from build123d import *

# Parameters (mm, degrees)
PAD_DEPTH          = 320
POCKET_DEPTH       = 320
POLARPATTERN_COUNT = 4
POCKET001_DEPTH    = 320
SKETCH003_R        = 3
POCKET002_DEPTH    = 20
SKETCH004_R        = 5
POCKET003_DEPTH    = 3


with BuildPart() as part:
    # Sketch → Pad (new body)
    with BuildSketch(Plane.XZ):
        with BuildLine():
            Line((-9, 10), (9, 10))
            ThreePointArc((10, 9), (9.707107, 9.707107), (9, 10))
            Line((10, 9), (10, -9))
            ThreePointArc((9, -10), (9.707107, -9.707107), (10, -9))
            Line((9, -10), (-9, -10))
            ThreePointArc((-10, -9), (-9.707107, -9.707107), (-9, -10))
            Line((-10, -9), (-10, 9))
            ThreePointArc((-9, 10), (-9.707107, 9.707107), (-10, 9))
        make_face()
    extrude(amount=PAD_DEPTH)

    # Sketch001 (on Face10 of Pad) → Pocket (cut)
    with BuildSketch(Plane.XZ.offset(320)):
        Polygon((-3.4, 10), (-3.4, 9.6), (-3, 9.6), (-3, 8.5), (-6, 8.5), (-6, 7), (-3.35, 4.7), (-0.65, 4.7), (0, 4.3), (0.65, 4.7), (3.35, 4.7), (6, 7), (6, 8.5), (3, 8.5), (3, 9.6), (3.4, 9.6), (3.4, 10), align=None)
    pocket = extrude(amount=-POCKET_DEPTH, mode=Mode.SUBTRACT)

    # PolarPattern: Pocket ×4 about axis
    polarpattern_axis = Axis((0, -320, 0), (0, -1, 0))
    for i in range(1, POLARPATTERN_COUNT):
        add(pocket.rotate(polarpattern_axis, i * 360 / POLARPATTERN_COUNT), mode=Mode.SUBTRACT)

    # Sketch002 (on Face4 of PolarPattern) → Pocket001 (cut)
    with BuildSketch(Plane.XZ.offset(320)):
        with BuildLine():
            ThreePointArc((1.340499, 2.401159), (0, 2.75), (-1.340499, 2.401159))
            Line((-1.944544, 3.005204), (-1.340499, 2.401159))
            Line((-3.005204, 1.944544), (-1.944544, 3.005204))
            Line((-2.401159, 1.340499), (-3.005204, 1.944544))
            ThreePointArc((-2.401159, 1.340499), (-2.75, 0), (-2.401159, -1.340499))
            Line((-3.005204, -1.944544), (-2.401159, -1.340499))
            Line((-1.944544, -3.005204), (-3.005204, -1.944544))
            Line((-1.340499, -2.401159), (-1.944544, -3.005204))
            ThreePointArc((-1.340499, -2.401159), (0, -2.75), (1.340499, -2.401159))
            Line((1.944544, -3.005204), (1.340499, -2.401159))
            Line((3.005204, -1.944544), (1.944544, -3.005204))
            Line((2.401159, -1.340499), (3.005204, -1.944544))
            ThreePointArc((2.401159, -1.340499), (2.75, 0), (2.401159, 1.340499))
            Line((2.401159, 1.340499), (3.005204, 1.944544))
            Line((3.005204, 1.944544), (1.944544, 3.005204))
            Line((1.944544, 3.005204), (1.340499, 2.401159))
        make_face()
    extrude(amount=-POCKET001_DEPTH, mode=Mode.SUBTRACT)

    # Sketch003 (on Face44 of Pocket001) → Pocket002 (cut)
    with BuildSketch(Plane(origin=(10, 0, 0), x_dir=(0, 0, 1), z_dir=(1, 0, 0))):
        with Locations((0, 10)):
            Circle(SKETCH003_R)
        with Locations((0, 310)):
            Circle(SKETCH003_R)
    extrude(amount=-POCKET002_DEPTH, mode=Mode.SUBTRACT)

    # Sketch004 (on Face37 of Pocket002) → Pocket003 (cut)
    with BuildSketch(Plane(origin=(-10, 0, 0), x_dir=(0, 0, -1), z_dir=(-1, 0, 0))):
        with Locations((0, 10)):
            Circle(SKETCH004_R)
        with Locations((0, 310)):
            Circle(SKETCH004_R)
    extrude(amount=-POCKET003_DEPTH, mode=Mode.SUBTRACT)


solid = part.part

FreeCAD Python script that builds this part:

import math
import FreeCAD as App
import Part
import Sketcher
Q = App.Units.Quantity


def add_polygon(sketch, points):
    """Adds a closed chain of lines whose ends are joined by coincident constraints."""
    first, n = sketch.GeometryCount, len(points)
    for a, b in zip(points, points[1:] + points[:1]):
        sketch.addGeometry(Part.LineSegment(App.Vector(*a, 0), App.Vector(*b, 0)), False)
    for i in range(n):
        sketch.addConstraint(Sketcher.Constraint("Coincident", first + i, 2, first + (i + 1) % n, 1))

doc = App.newDocument("Part")
body = doc.addObject("PartDesign::Body", "Body")

# Sketch on XZ plane
sketch1 = body.newObject("Sketcher::SketchObject", "Sketch")
sketch1.AttachmentSupport = (doc.getObject("XZ_Plane"), [""])
sketch1.MapMode = "FlatFace"
sketch1.addGeometry(Part.LineSegment(App.Vector(9, 10, 0), App.Vector(-9, 10, 0)), False)
sketch1.addGeometry(Part.ArcOfCircle(Part.Circle(App.Vector(-9, 9, 0), App.Vector(0, 0, 1), 1), math.radians(90), math.radians(180)), False)
sketch1.addGeometry(Part.LineSegment(App.Vector(-10, 9, 0), App.Vector(-10, -9, 0)), False)
sketch1.addGeometry(Part.ArcOfCircle(Part.Circle(App.Vector(-9, -9, 0), App.Vector(0, 0, 1), 1), math.radians(180), math.radians(270)), False)
sketch1.addGeometry(Part.LineSegment(App.Vector(-9, -10, 0), App.Vector(9, -10, 0)), False)
sketch1.addGeometry(Part.ArcOfCircle(Part.Circle(App.Vector(9, -9, 0), App.Vector(0, 0, 1), 1), math.radians(-90), math.radians(0)), False)
sketch1.addGeometry(Part.LineSegment(App.Vector(10, -9, 0), App.Vector(10, 9, 0)), False)
sketch1.addGeometry(Part.ArcOfCircle(Part.Circle(App.Vector(9, 9, 0), App.Vector(0, 0, 1), 1), math.radians(0), math.radians(90)), False)
sketch1.addConstraint(Sketcher.Constraint("Tangent", 0, 2, 1, 1))
sketch1.addConstraint(Sketcher.Constraint("Tangent", 1, 2, 2, 1))
sketch1.addConstraint(Sketcher.Constraint("Tangent", 2, 2, 3, 1))
sketch1.addConstraint(Sketcher.Constraint("Tangent", 3, 2, 4, 1))
sketch1.addConstraint(Sketcher.Constraint("Tangent", 4, 2, 5, 1))
sketch1.addConstraint(Sketcher.Constraint("Tangent", 5, 2, 6, 1))
sketch1.addConstraint(Sketcher.Constraint("Tangent", 6, 2, 7, 1))
sketch1.addConstraint(Sketcher.Constraint("Tangent", 7, 2, 0, 1))
sketch1.addConstraint(Sketcher.Constraint("Horizontal", 0))
sketch1.addConstraint(Sketcher.Constraint("Vertical", 2))
sketch1.addConstraint(Sketcher.Constraint("Horizontal", 4))
sketch1.addConstraint(Sketcher.Constraint("Vertical", 6))
sketch1.addConstraint(Sketcher.Constraint("Equal", 1, 3))
sketch1.addConstraint(Sketcher.Constraint("Equal", 3, 5))
sketch1.addConstraint(Sketcher.Constraint("Equal", 5, 7))
sketch1.addConstraint(Sketcher.Constraint("Symmetric", 1, 3, 5, 3, -1, 1))
sketch1.addConstraint(Sketcher.Constraint("Equal", 4, 2))
sketch1.addConstraint(Sketcher.Constraint("Radius", 1, Q("0.999999 mm")))
sketch1.addConstraint(Sketcher.Constraint("DistanceX", 0, 2, 0, 1, Q("18 mm")))
pad1 = body.newObject("PartDesign::Pad", "Pad")
pad1.Profile = sketch1
pad1.Length = 320

# Sketch on XZ plane
sketch2 = body.newObject("Sketcher::SketchObject", "Sketch001")
sketch2.AttachmentSupport = (doc.getObject("XZ_Plane"), [""])
sketch2.MapMode = "FlatFace"
sketch2.AttachmentOffset = App.Placement(App.Vector(0, 0, 320), App.Rotation())
add_polygon(sketch2, [(-3.4, 10), (-3.4, 9.6), (-3, 9.6), (-3, 8.5), (-6, 8.5), (-6, 7), (-3.35, 4.7), (-0.65, 4.7), (0, 4.3), (0.65, 4.7), (3.35, 4.7), (6, 7), (6, 8.5), (3, 8.5), (3, 9.6), (3.4, 9.6), (3.4, 10)])  # lines 0-16
sketch2.addConstraint(Sketcher.Constraint("Vertical", 0))
sketch2.addConstraint(Sketcher.Constraint("Horizontal", 1))
sketch2.addConstraint(Sketcher.Constraint("Vertical", 2))
sketch2.addConstraint(Sketcher.Constraint("Horizontal", 3))
sketch2.addConstraint(Sketcher.Constraint("Vertical", 4))
sketch2.addConstraint(Sketcher.Constraint("Horizontal", 6))
sketch2.addConstraint(Sketcher.Constraint("Horizontal", 9))
sketch2.addConstraint(Sketcher.Constraint("Vertical", 11))
sketch2.addConstraint(Sketcher.Constraint("Horizontal", 12))
sketch2.addConstraint(Sketcher.Constraint("Vertical", 13))
sketch2.addConstraint(Sketcher.Constraint("Horizontal", 14))
sketch2.addConstraint(Sketcher.Constraint("Vertical", 15))
sketch2.addConstraint(Sketcher.Constraint("Horizontal", 16))
sketch2.addConstraint(Sketcher.Constraint("Symmetric", 6, 2, 8, 2, -2))
sketch2.addConstraint(Sketcher.Constraint("Symmetric", 4, 2, 10, 2, -2))
sketch2.addConstraint(Sketcher.Constraint("Symmetric", 2, 2, 12, 2, -2))
sketch2.addConstraint(Sketcher.Constraint("Symmetric", 0, 2, 14, 2, -2))
sketch2.addConstraint(Sketcher.Constraint("PointOnObject", 7, 2, -2))
sketch2.addConstraint(Sketcher.Constraint("Equal", 6, 9))
sketch2.addConstraint(Sketcher.Constraint("Equal", 14, 0))
sketch2.addConstraint(Sketcher.Constraint("DistanceX", 3, 2, 3, 1, Q("3 mm")))
sketch2.addConstraint(Sketcher.Constraint("DistanceX", 1, 1, 1, 2, Q("0.4 mm")))
sketch2.addConstraint(Sketcher.Constraint("DistanceX", 6, 1, 6, 2, Q("2.7 mm")))
sketch2.addConstraint(Sketcher.Constraint("DistanceX", 16, 2, 16, 1, Q("6.8 mm")))
sketch2.addConstraint(Sketcher.Constraint("DistanceY", 2, 2, 2, 1, Q("1.1 mm")))
sketch2.addConstraint(Sketcher.Constraint("DistanceY", 4, 2, 4, 1, Q("1.5 mm")))
sketch2.addConstraint(Sketcher.Constraint("DistanceY", -1, 1, 4, 2, Q("7 mm")))
sketch2.addConstraint(Sketcher.Constraint("DistanceX", 5, 2, 8, 2, Q("4 mm")))
sketch2.addConstraint(Sketcher.Constraint("DistanceY", -1, 1, 5, 2, Q("4.7 mm")))
sketch2.addConstraint(Sketcher.Constraint("DistanceY", -1, 1, 7, 2, Q("4.3 mm")))
pocket1 = body.newObject("PartDesign::Pocket", "Pocket")
pocket1.Profile = sketch2
pocket1.Length = 320
doc.recompute()

polarpattern = body.newObject("PartDesign::PolarPattern", "PolarPattern")
polarpattern.Originals = [pocket1]
polarpattern.Axis = (doc.getObject("Y_Axis"), [""])
polarpattern.Angle = 360
polarpattern.Occurrences = 4
body.Tip = polarpattern

# Sketch on XZ plane
sketch3 = body.newObject("Sketcher::SketchObject", "Sketch002")
sketch3.AttachmentSupport = (doc.getObject("XZ_Plane"), [""])
sketch3.MapMode = "FlatFace"
sketch3.AttachmentOffset = App.Placement(App.Vector(0, 0, 320), App.Rotation())
sketch3.addGeometry(Part.ArcOfCircle(Part.Circle(App.Vector(0, 0, 0), App.Vector(0, 0, 1), 2.8), math.radians(61), math.radians(119)), False)
sketch3.addGeometry(Part.LineSegment(App.Vector(-1.3, 2.4, 0), App.Vector(-1.9, 3, 0)), False)
sketch3.addGeometry(Part.LineSegment(App.Vector(-1.9, 3, 0), App.Vector(-3, 1.9, 0)), False)
sketch3.addGeometry(Part.LineSegment(App.Vector(-3, 1.9, 0), App.Vector(-2.4, 1.3, 0)), False)
sketch3.addGeometry(Part.ArcOfCircle(Part.Circle(App.Vector(0, 0, 0), App.Vector(0, 0, 1), 2.8), math.radians(151), math.radians(209)), False)
sketch3.addGeometry(Part.LineSegment(App.Vector(-2.4, -1.3, 0), App.Vector(-3, -1.9, 0)), False)
sketch3.addGeometry(Part.LineSegment(App.Vector(-3, -1.9, 0), App.Vector(-1.9, -3, 0)), False)
sketch3.addGeometry(Part.LineSegment(App.Vector(-1.9, -3, 0), App.Vector(-1.3, -2.4, 0)), False)
sketch3.addGeometry(Part.ArcOfCircle(Part.Circle(App.Vector(0, 0, 0), App.Vector(0, 0, 1), 2.8), math.radians(-119), math.radians(-61)), False)
sketch3.addGeometry(Part.LineSegment(App.Vector(1.3, -2.4, 0), App.Vector(1.9, -3, 0)), False)
sketch3.addGeometry(Part.LineSegment(App.Vector(1.9, -3, 0), App.Vector(3, -1.9, 0)), False)
sketch3.addGeometry(Part.LineSegment(App.Vector(3, -1.9, 0), App.Vector(2.4, -1.3, 0)), False)
sketch3.addGeometry(Part.ArcOfCircle(Part.Circle(App.Vector(0, 0, 0), App.Vector(0, 0, 1), 2.8), math.radians(-29), math.radians(29)), False)
sketch3.addGeometry(Part.LineSegment(App.Vector(2.4, 1.3, 0), App.Vector(3, 1.9, 0)), False)
sketch3.addGeometry(Part.LineSegment(App.Vector(3, 1.9, 0), App.Vector(1.9, 3, 0)), False)
sketch3.addGeometry(Part.LineSegment(App.Vector(1.9, 3, 0), App.Vector(1.3, 2.4, 0)), False)
sketch3.addConstraint(Sketcher.Constraint("Coincident", 0, 2, 1, 1))
sketch3.addConstraint(Sketcher.Constraint("Coincident", 1, 2, 2, 1))
sketch3.addConstraint(Sketcher.Constraint("Coincident", 2, 2, 3, 1))
sketch3.addConstraint(Sketcher.Constraint("Coincident", 3, 2, 4, 1))
sketch3.addConstraint(Sketcher.Constraint("Coincident", 4, 2, 5, 1))
sketch3.addConstraint(Sketcher.Constraint("Coincident", 5, 2, 6, 1))
sketch3.addConstraint(Sketcher.Constraint("Coincident", 6, 2, 7, 1))
sketch3.addConstraint(Sketcher.Constraint("Coincident", 7, 2, 8, 1))
sketch3.addConstraint(Sketcher.Constraint("Coincident", 8, 2, 9, 1))
sketch3.addConstraint(Sketcher.Constraint("Coincident", 9, 2, 10, 1))
sketch3.addConstraint(Sketcher.Constraint("Coincident", 10, 2, 11, 1))
sketch3.addConstraint(Sketcher.Constraint("Coincident", 11, 2, 12, 1))
sketch3.addConstraint(Sketcher.Constraint("Coincident", 12, 2, 13, 1))
sketch3.addConstraint(Sketcher.Constraint("Coincident", 13, 2, 14, 1))
sketch3.addConstraint(Sketcher.Constraint("Coincident", 14, 2, 15, 1))
sketch3.addConstraint(Sketcher.Constraint("Coincident", 15, 2, 0, 1))
sketch3.addConstraint(Sketcher.Constraint("Coincident", 0, 3, -1, 1))
sketch3.addConstraint(Sketcher.Constraint("Coincident", 4, 3, -1, 1))
sketch3.addConstraint(Sketcher.Constraint("Coincident", 8, 3, -1, 1))
sketch3.addConstraint(Sketcher.Constraint("Coincident", 12, 3, -1, 1))
sketch3.addConstraint(Sketcher.Constraint("Equal", 0, 4))
sketch3.addConstraint(Sketcher.Constraint("Equal", 4, 8))
sketch3.addConstraint(Sketcher.Constraint("Equal", 8, 12))
sketch3.addConstraint(Sketcher.Constraint("Symmetric", 1, 2, 9, 2, -1, 1))
sketch3.addConstraint(Sketcher.Constraint("Symmetric", 2, 2, 10, 2, -1, 1))
sketch3.addConstraint(Sketcher.Constraint("Symmetric", 5, 2, 13, 2, -1, 1))
sketch3.addConstraint(Sketcher.Constraint("Symmetric", 6, 2, 14, 2, -1, 1))
sketch3.addConstraint(Sketcher.Constraint("Symmetric", 6, 2, 9, 2, -2))
sketch3.addConstraint(Sketcher.Constraint("Symmetric", 5, 2, 10, 2, -2))
sketch3.addConstraint(Sketcher.Constraint("Perpendicular", 1, 2))
sketch3.addConstraint(Sketcher.Constraint("Perpendicular", 2, 3))
sketch3.addConstraint(Sketcher.Constraint("Perpendicular", 3, 5))
sketch3.addConstraint(Sketcher.Constraint("Perpendicular", 5, 6))
sketch3.addConstraint(Sketcher.Constraint("Perpendicular", 6, 7))
sketch3.addConstraint(Sketcher.Constraint("Perpendicular", 7, 9))
sketch3.addConstraint(Sketcher.Constraint("Perpendicular", 10, 11))
sketch3.addConstraint(Sketcher.Constraint("Perpendicular", 11, 13))
sketch3.addConstraint(Sketcher.Constraint("Perpendicular", 14, 15))
sketch3.addConstraint(Sketcher.Constraint("Equal", 1, 3))
sketch3.addConstraint(Sketcher.Constraint("Distance", 2, Q("1.5 mm")))
sketch3.addConstraint(Sketcher.Constraint("Radius", 0, Q("2.750003 mm")))
sketch3.addConstraint(Sketcher.Constraint("DistanceY", 8, 3, 1, 2, Q("3.005201 mm")))
pocket2 = body.newObject("PartDesign::Pocket", "Pocket001")
pocket2.Profile = sketch3
pocket2.Length = 320

# Sketch on YZ plane
sketch4 = body.newObject("Sketcher::SketchObject", "Sketch003")
sketch4.AttachmentSupport = (doc.getObject("YZ_Plane"), [""])
sketch4.MapMode = "FlatFace"
sketch4.AttachmentOffset = App.Placement(App.Vector(0, 0, 10), App.Rotation())
sketch4.addGeometry(Part.Circle(App.Vector(-10, 0, 0), App.Vector(0, 0, 1), 3), False)
sketch4.addGeometry(Part.Circle(App.Vector(-310, 0, 0), App.Vector(0, 0, 1), 3), False)
sketch4.addConstraint(Sketcher.Constraint("Equal", 0, 1))
sketch4.addConstraint(Sketcher.Constraint("PointOnObject", 0, 3, -1))
sketch4.addConstraint(Sketcher.Constraint("PointOnObject", 1, 3, -1))
sketch4.addConstraint(Sketcher.Constraint("Diameter", 0, Q("6 mm")))
sketch4.addConstraint(Sketcher.Constraint("DistanceX", 0, 3, -1, 1, Q("10 mm")))
sketch4.addConstraint(Sketcher.Constraint("DistanceX", 1, 3, -1, 1, Q("310 mm")))
pocket3 = body.newObject("PartDesign::Pocket", "Pocket002")
pocket3.Profile = sketch4
pocket3.Length = 20

# Sketch on YZ plane
sketch5 = body.newObject("Sketcher::SketchObject", "Sketch004")
sketch5.AttachmentSupport = (doc.getObject("YZ_Plane"), [""])
sketch5.MapMode = "FlatFace"
sketch5.AttachmentOffset = App.Placement(App.Vector(0, 0, -10), App.Rotation())
sketch5.addGeometry(Part.Circle(App.Vector(-10, 0, 0), App.Vector(0, 0, 1), 5), False)
sketch5.addGeometry(Part.Circle(App.Vector(-310, 0, 0), App.Vector(0, 0, 1), 5), False)
sketch5.addConstraint(Sketcher.Constraint("Equal", 0, 1))
sketch5.addConstraint(Sketcher.Constraint("PointOnObject", 0, 3, -1))
sketch5.addConstraint(Sketcher.Constraint("PointOnObject", 1, 3, -1))
sketch5.addConstraint(Sketcher.Constraint("Diameter", 0, Q("10 mm")))
sketch5.addConstraint(Sketcher.Constraint("DistanceX", 0, 3, -1, 1, Q("10 mm")))
sketch5.addConstraint(Sketcher.Constraint("DistanceX", 1, 3, -1, 1, Q("310 mm")))
pocket4 = body.newObject("PartDesign::Pocket", "Pocket003")
pocket4.Profile = sketch5
pocket4.Length = 3
pocket4.Reversed = True

doc.recompute()
